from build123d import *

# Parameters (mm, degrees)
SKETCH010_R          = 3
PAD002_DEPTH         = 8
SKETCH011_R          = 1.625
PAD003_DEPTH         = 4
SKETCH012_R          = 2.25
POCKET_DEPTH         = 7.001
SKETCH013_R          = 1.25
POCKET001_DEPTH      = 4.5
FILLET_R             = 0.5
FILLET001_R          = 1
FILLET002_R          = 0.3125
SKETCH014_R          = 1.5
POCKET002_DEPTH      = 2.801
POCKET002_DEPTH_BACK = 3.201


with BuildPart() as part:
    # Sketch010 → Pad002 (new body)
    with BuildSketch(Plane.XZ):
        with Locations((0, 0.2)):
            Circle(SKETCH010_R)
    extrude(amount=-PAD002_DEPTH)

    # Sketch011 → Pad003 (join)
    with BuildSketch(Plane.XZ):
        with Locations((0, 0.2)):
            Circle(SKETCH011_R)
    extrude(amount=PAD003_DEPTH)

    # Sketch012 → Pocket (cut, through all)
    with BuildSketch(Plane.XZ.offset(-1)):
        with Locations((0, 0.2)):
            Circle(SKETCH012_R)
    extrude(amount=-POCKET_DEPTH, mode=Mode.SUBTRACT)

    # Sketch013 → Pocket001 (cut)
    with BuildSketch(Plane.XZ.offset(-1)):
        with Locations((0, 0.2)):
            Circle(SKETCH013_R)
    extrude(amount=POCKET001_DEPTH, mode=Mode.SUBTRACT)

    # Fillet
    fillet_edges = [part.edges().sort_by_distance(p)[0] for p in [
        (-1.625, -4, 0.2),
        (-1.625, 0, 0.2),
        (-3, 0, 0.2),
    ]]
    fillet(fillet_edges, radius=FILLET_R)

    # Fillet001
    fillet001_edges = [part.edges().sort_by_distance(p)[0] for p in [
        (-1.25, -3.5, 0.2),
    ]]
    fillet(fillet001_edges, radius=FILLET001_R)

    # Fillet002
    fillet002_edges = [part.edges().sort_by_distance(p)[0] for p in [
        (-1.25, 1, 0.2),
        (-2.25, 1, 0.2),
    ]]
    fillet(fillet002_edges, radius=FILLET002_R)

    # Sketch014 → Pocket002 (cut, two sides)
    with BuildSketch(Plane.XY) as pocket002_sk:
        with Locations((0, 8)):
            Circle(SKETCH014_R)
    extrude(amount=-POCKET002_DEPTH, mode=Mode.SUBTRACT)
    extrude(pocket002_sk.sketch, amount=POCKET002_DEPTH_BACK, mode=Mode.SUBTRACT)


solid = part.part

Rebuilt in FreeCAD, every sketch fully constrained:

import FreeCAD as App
import Part
import Sketcher

V = App.Vector


def edges_at(feature, points):
    """Names of the edges that pass closest to the given points."""
    edges = feature.Shape.Edges
    near = lambda p: min(range(len(edges)), key=lambda i: edges[i].distToShape(Part.Vertex(*p))[0])
    return sorted({f"Edge{near(p) + 1}" for p in points})

doc = App.newDocument("Part")
body = doc.addObject("PartDesign::Body", "Body")

# Sketch on XZ plane
sketch1 = body.newObject("Sketcher::SketchObject", "Sketch")
sketch1.AttachmentSupport = (doc.getObject("XZ_Plane"), [""])
sketch1.MapMode = "FlatFace"
sketch1.addGeometry(Part.Circle(V(0, 0.2, 0), V(0, 0, 1), 3), False)
sketch1.addConstraint([
    Sketcher.Constraint("PointOnObject", 0, 3, -2),
    Sketcher.Constraint("Diameter", 0, 6.0),
    Sketcher.Constraint("DistanceY", -1, 1, 0, 3, 0.2),
])
pad1 = body.newObject("PartDesign::Pad", "Pad")
pad1.Profile = sketch1
pad1.Length = 8
pad1.Reversed = True

# Sketch on XZ plane
sketch2 = body.newObject("Sketcher::SketchObject", "Sketch001")
sketch2.AttachmentSupport = (doc.getObject("XZ_Plane"), [""])
sketch2.MapMode = "FlatFace"
sketch2.addGeometry(Part.Circle(V(0, 0.2, 0), V(0, 0, 1), 1.625), False)
sketch2.addConstraint([
    Sketcher.Constraint("PointOnObject", 0, 3, -2),
    Sketcher.Constraint("Diameter", 0, 3.25),
    Sketcher.Constraint("DistanceY", -1, 1, 0, 3, 0.2),
])
pad2 = body.newObject("PartDesign::Pad", "Pad001")
pad2.Profile = sketch2
pad2.Length = 4

# Sketch on XZ plane
sketch3 = body.newObject("Sketcher::SketchObject", "Sketch002")
sketch3.AttachmentSupport = (doc.getObject("XZ_Plane"), [""])
sketch3.MapMode = "FlatFace"
sketch3.AttachmentOffset = App.Placement(V(0, 0, -1), App.Rotation())
sketch3.addGeometry(Part.Circle(V(0, 0.2, 0), V(0, 0, 1), 2.25), False)
sketch3.addConstraint([
    Sketcher.Constraint("PointOnObject", 0, 3, -2),
    Sketcher.Constraint("Diameter", 0, 4.5),
    Sketcher.Constraint("DistanceY", -1, 1, 0, 3, 0.2),
])
pocket1 = body.newObject("PartDesign::Pocket", "Pocket")
pocket1.Profile = sketch3
pocket1.Type = "ThroughAll"

# Sketch on XZ plane
sketch4 = body.newObject("Sketcher::SketchObject", "Sketch003")
sketch4.AttachmentSupport = (doc.getObject("XZ_Plane"), [""])
sketch4.MapMode = "FlatFace"
sketch4.AttachmentOffset = App.Placement(V(0, 0, -1), App.Rotation())
sketch4.addGeometry(Part.Circle(V(0, 0.2, 0), V(0, 0, 1), 1.25), False)
sketch4.addConstraint([
    Sketcher.Constraint("PointOnObject", 0, 3, -2),
    Sketcher.Constraint("Diameter", 0, 2.5),
    Sketcher.Constraint("DistanceY", -1, 1, 0, 3, 0.2),
])
pocket2 = body.newObject("PartDesign::Pocket", "Pocket001")
pocket2.Profile = sketch4
pocket2.Length = 4.5
pocket2.Reversed = True
doc.recompute()

fillet = body.newObject("PartDesign::Fillet", "Fillet")
fillet.Base = (pocket2, edges_at(pocket2, [(-1.625, -4, 0.2), (-1.625, 0, 0.2), (-3, 0, 0.2)]))
fillet.Radius = 0.5
doc.recompute()

fillet2 = body.newObject("PartDesign::Fillet", "Fillet001")
fillet2.Base = (fillet, edges_at(fillet, [(-1.25, -3.5, 0.2)]))
fillet2.Radius = 1
doc.recompute()

fillet3 = body.newObject("PartDesign::Fillet", "Fillet002")
fillet3.Base = (fillet2, edges_at(fillet2, [(-1.25, 1, 0.2), (-2.25, 1, 0.2)]))
fillet3.Radius = 0.3125

# Sketch on XY plane
sketch5 = body.newObject("Sketcher::SketchObject", "Sketch004")
sketch5.AttachmentSupport = (doc.getObject("XY_Plane"), [""])
sketch5.MapMode = "FlatFace"
sketch5.addGeometry(Part.Circle(V(0, 8, 0), V(0, 0, 1), 1.5), False)
sketch5.addConstraint([
    Sketcher.Constraint("PointOnObject", 0, 3, -2),
    Sketcher.Constraint("Diameter", 0, 3.0),
    Sketcher.Constraint("DistanceY", -1, 1, 0, 3, 8.0),
])
pocket3 = body.newObject("PartDesign::Pocket", "Pocket002")
pocket3.Profile = sketch5
pocket3.Type = "ThroughAll"
pocket3.Midplane = True

doc.recompute()
